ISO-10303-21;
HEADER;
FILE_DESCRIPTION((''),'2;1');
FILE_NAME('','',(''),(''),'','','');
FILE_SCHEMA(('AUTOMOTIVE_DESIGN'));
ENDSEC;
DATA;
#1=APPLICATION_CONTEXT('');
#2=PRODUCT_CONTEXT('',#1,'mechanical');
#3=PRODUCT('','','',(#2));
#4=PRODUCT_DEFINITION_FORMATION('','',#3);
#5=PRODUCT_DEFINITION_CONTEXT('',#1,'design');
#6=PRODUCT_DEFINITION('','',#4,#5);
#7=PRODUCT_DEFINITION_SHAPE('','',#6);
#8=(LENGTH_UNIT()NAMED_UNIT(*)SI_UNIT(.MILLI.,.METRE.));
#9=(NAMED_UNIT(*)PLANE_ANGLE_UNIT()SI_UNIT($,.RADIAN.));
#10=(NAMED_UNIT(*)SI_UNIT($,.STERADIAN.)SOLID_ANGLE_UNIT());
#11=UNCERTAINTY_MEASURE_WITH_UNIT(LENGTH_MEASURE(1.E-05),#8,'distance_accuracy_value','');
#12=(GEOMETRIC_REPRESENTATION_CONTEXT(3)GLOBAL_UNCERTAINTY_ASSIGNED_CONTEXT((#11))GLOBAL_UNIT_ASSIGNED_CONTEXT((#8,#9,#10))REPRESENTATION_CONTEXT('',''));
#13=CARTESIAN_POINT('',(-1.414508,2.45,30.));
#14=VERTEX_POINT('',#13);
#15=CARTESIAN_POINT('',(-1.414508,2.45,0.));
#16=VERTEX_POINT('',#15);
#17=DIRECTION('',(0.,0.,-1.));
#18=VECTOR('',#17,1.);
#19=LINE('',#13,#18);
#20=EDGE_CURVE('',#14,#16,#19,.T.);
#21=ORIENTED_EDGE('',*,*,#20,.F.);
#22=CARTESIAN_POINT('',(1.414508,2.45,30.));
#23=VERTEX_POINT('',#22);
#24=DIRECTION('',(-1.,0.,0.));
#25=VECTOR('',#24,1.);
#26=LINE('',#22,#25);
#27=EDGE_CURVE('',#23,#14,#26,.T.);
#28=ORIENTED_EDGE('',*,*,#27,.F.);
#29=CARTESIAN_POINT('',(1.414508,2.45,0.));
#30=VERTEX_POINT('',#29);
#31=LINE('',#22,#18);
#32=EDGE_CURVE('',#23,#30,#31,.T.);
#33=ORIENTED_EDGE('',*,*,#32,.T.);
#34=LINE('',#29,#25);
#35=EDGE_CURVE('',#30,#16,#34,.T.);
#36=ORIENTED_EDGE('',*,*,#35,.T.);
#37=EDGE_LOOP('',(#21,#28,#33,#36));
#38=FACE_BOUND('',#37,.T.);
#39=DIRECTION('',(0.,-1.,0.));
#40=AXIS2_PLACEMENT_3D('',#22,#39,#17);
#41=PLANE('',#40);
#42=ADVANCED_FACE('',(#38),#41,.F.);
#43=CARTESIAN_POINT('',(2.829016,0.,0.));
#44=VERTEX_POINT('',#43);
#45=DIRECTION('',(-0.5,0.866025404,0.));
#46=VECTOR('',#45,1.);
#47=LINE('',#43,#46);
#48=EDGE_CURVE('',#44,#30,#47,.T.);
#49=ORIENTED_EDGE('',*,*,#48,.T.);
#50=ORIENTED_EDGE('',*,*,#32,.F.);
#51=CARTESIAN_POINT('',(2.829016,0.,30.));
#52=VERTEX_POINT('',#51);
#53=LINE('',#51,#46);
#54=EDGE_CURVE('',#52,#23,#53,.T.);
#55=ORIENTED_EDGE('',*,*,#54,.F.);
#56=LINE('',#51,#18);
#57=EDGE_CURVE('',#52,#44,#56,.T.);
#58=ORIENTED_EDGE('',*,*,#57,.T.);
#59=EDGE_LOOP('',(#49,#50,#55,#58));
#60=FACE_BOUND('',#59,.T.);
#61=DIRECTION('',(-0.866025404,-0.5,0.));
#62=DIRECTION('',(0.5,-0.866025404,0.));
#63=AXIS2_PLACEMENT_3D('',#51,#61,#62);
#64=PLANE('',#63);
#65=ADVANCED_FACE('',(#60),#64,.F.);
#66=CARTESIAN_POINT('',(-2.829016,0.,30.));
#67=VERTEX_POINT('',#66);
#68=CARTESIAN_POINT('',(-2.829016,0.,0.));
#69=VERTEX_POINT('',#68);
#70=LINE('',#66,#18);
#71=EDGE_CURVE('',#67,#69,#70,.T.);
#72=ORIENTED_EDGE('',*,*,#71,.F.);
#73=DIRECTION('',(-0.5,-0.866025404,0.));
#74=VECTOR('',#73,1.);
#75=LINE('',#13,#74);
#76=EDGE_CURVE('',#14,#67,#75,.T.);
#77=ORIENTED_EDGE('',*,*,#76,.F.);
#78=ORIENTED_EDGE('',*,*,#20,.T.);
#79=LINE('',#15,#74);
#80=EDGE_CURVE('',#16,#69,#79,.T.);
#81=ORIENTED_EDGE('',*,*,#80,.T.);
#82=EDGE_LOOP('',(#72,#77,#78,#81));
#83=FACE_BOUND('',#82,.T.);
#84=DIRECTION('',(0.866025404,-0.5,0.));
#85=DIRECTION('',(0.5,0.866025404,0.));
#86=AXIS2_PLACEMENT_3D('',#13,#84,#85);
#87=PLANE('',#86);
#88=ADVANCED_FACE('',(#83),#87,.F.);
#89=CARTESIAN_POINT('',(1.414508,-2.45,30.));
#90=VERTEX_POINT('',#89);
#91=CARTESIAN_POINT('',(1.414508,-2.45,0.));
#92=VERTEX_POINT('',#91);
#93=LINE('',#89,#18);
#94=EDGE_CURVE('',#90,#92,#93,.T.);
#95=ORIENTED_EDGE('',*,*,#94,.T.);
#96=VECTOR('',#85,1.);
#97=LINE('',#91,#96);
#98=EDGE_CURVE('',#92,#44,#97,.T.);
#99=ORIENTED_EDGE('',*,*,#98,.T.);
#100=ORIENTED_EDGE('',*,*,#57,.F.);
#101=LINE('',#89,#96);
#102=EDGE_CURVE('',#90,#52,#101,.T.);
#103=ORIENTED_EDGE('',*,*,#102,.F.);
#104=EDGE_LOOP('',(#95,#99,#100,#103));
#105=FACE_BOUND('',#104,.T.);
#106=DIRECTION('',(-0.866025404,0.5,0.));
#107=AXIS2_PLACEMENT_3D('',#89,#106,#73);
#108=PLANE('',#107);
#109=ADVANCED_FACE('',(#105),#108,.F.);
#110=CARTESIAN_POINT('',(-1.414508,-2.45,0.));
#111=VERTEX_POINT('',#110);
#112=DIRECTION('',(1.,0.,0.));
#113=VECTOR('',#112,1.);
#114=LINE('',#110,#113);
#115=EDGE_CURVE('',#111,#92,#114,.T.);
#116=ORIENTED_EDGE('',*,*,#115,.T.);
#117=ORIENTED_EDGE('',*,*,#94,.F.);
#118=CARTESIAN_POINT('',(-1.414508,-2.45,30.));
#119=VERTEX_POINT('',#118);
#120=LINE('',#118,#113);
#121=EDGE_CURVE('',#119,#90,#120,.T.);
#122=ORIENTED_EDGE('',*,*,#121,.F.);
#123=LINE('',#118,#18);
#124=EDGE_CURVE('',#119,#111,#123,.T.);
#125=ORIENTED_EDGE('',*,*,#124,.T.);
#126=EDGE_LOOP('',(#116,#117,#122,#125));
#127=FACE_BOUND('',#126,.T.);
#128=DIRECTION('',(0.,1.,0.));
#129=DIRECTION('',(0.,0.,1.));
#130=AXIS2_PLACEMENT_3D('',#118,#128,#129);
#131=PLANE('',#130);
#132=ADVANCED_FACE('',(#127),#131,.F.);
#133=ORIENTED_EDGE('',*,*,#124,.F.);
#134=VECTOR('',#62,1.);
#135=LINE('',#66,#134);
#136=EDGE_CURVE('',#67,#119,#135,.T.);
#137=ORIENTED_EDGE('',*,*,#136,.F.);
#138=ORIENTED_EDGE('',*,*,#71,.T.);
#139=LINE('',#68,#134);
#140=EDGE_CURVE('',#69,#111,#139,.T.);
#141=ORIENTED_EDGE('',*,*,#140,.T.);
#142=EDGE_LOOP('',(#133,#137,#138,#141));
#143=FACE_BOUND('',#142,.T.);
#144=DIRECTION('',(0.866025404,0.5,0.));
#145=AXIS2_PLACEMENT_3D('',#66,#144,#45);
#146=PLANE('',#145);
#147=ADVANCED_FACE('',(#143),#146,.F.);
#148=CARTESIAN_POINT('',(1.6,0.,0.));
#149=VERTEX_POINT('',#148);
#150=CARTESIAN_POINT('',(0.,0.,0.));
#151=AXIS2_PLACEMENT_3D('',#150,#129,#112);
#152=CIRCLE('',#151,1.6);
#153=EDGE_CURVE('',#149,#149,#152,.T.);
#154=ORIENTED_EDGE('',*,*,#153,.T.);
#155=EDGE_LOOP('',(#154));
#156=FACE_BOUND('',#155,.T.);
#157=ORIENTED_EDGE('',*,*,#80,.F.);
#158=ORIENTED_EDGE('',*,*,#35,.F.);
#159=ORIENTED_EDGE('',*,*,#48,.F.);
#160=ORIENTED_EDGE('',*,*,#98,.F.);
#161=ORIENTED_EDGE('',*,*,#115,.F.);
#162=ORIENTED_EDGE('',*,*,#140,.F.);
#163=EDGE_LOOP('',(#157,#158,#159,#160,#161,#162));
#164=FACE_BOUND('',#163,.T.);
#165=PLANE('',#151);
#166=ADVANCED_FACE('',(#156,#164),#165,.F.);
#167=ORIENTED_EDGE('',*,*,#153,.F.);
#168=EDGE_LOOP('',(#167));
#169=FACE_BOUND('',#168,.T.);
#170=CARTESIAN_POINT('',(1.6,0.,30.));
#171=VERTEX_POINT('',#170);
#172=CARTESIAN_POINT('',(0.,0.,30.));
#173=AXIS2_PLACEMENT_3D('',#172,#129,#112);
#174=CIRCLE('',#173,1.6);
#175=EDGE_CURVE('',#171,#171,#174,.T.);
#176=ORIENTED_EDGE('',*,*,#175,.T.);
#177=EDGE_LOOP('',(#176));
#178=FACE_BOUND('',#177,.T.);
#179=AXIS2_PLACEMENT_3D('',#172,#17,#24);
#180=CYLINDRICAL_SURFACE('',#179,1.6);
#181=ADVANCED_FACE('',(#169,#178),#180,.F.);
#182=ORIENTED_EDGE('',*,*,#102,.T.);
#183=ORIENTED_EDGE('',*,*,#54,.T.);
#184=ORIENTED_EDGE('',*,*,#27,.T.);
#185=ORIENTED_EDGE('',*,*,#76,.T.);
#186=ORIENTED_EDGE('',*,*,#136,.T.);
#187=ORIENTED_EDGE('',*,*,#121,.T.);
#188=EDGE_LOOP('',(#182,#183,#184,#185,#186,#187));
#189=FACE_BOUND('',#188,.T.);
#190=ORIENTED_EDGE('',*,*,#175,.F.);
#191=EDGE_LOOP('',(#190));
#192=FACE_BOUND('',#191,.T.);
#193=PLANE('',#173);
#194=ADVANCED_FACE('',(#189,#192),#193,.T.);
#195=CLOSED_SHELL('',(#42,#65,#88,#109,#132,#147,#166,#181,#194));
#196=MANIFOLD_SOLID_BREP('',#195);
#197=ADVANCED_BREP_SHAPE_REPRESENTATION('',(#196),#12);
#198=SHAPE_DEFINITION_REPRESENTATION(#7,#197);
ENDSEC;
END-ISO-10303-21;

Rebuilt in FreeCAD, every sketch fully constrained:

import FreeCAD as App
import Part
import Sketcher
from FreeCAD import Vector
Q = App.Units.Quantity


def add_polygon(sketch, points):
    """Adds a closed chain of lines whose ends are joined by coincident constraints."""
    first, n = sketch.GeometryCount, len(points)
    for a, b in zip(points, points[1:] + points[:1]):
        sketch.addGeometry(Part.LineSegment(App.Vector(*a, 0), App.Vector(*b, 0)), False)
    for i in range(n):
        sketch.addConstraint(Sketcher.Constraint("Coincident", first + i, 2, first + (i + 1) % n, 1))

doc = App.newDocument("Part")
params = doc.addObject("Spreadsheet::Sheet", "Params")
for row, (alias, value) in enumerate([
    ("sketch1_diameter", "3.2 mm"),
    ("pad1_length", "30 mm"),
], start=1):
    params.set(f"A{row}", alias)
    params.set(f"B{row}", "=" + value)
    params.setAlias(f"B{row}", alias)

body = doc.addObject("PartDesign::Body", "Body")

# Sketch on XY plane
sketch1 = doc.addObject("Sketcher::SketchObject", "Sketch")
body.addObject(sketch1)
sketch1.AttachmentSupport = (doc.XY_Plane, [""])
sketch1.MapMode = "FlatFace"
add_polygon(sketch1, [(2.8, 0), (1.4, 2.5), (-1.4, 2.5), (-2.8, 0), (-1.4, -2.5), (1.4, -2.5)])  # lines 0-5
sketch1.addGeometry(Part.Circle(Vector(0, 0, 0), Vector(0, 0, 1), 1.6), False)  # 6
sketch1.addConstraint([
    Sketcher.Constraint("Horizontal", 1),
    Sketcher.Constraint("Horizontal", 4),
    Sketcher.Constraint("Coincident", 6, 3, -1, 1),
    Sketcher.Constraint("Symmetric", 0, 2, 3, 2, -1, 1),
    Sketcher.Constraint("Symmetric", 2, 2, 5, 2, -1, 1),
    Sketcher.Constraint("PointOnObject", 2, 2, -1),
    Sketcher.Constraint("Parallel", 2, 5),
    Sketcher.Constraint("Vertical", 1, 2, 3, 2),
    Sketcher.Constraint("Diameter", 6, Q("3.2 mm")),
    Sketcher.Constraint("Angle", 0, Q("120 deg")),
    Sketcher.Constraint("DistanceY", 3, 2, 1, 2, Q("4.9 mm")),
    Sketcher.Constraint("DistanceX", 1, 2, 1, 1, Q("2.829016 mm")),
])
sketch1.setExpression("Constraints[14]", "Params.sketch1_diameter")
pad1 = doc.addObject("PartDesign::Pad", "Pad")
body.addObject(pad1)
pad1.Profile = sketch1
pad1.setExpression("Length", "Params.pad1_length")

doc.recompute()
